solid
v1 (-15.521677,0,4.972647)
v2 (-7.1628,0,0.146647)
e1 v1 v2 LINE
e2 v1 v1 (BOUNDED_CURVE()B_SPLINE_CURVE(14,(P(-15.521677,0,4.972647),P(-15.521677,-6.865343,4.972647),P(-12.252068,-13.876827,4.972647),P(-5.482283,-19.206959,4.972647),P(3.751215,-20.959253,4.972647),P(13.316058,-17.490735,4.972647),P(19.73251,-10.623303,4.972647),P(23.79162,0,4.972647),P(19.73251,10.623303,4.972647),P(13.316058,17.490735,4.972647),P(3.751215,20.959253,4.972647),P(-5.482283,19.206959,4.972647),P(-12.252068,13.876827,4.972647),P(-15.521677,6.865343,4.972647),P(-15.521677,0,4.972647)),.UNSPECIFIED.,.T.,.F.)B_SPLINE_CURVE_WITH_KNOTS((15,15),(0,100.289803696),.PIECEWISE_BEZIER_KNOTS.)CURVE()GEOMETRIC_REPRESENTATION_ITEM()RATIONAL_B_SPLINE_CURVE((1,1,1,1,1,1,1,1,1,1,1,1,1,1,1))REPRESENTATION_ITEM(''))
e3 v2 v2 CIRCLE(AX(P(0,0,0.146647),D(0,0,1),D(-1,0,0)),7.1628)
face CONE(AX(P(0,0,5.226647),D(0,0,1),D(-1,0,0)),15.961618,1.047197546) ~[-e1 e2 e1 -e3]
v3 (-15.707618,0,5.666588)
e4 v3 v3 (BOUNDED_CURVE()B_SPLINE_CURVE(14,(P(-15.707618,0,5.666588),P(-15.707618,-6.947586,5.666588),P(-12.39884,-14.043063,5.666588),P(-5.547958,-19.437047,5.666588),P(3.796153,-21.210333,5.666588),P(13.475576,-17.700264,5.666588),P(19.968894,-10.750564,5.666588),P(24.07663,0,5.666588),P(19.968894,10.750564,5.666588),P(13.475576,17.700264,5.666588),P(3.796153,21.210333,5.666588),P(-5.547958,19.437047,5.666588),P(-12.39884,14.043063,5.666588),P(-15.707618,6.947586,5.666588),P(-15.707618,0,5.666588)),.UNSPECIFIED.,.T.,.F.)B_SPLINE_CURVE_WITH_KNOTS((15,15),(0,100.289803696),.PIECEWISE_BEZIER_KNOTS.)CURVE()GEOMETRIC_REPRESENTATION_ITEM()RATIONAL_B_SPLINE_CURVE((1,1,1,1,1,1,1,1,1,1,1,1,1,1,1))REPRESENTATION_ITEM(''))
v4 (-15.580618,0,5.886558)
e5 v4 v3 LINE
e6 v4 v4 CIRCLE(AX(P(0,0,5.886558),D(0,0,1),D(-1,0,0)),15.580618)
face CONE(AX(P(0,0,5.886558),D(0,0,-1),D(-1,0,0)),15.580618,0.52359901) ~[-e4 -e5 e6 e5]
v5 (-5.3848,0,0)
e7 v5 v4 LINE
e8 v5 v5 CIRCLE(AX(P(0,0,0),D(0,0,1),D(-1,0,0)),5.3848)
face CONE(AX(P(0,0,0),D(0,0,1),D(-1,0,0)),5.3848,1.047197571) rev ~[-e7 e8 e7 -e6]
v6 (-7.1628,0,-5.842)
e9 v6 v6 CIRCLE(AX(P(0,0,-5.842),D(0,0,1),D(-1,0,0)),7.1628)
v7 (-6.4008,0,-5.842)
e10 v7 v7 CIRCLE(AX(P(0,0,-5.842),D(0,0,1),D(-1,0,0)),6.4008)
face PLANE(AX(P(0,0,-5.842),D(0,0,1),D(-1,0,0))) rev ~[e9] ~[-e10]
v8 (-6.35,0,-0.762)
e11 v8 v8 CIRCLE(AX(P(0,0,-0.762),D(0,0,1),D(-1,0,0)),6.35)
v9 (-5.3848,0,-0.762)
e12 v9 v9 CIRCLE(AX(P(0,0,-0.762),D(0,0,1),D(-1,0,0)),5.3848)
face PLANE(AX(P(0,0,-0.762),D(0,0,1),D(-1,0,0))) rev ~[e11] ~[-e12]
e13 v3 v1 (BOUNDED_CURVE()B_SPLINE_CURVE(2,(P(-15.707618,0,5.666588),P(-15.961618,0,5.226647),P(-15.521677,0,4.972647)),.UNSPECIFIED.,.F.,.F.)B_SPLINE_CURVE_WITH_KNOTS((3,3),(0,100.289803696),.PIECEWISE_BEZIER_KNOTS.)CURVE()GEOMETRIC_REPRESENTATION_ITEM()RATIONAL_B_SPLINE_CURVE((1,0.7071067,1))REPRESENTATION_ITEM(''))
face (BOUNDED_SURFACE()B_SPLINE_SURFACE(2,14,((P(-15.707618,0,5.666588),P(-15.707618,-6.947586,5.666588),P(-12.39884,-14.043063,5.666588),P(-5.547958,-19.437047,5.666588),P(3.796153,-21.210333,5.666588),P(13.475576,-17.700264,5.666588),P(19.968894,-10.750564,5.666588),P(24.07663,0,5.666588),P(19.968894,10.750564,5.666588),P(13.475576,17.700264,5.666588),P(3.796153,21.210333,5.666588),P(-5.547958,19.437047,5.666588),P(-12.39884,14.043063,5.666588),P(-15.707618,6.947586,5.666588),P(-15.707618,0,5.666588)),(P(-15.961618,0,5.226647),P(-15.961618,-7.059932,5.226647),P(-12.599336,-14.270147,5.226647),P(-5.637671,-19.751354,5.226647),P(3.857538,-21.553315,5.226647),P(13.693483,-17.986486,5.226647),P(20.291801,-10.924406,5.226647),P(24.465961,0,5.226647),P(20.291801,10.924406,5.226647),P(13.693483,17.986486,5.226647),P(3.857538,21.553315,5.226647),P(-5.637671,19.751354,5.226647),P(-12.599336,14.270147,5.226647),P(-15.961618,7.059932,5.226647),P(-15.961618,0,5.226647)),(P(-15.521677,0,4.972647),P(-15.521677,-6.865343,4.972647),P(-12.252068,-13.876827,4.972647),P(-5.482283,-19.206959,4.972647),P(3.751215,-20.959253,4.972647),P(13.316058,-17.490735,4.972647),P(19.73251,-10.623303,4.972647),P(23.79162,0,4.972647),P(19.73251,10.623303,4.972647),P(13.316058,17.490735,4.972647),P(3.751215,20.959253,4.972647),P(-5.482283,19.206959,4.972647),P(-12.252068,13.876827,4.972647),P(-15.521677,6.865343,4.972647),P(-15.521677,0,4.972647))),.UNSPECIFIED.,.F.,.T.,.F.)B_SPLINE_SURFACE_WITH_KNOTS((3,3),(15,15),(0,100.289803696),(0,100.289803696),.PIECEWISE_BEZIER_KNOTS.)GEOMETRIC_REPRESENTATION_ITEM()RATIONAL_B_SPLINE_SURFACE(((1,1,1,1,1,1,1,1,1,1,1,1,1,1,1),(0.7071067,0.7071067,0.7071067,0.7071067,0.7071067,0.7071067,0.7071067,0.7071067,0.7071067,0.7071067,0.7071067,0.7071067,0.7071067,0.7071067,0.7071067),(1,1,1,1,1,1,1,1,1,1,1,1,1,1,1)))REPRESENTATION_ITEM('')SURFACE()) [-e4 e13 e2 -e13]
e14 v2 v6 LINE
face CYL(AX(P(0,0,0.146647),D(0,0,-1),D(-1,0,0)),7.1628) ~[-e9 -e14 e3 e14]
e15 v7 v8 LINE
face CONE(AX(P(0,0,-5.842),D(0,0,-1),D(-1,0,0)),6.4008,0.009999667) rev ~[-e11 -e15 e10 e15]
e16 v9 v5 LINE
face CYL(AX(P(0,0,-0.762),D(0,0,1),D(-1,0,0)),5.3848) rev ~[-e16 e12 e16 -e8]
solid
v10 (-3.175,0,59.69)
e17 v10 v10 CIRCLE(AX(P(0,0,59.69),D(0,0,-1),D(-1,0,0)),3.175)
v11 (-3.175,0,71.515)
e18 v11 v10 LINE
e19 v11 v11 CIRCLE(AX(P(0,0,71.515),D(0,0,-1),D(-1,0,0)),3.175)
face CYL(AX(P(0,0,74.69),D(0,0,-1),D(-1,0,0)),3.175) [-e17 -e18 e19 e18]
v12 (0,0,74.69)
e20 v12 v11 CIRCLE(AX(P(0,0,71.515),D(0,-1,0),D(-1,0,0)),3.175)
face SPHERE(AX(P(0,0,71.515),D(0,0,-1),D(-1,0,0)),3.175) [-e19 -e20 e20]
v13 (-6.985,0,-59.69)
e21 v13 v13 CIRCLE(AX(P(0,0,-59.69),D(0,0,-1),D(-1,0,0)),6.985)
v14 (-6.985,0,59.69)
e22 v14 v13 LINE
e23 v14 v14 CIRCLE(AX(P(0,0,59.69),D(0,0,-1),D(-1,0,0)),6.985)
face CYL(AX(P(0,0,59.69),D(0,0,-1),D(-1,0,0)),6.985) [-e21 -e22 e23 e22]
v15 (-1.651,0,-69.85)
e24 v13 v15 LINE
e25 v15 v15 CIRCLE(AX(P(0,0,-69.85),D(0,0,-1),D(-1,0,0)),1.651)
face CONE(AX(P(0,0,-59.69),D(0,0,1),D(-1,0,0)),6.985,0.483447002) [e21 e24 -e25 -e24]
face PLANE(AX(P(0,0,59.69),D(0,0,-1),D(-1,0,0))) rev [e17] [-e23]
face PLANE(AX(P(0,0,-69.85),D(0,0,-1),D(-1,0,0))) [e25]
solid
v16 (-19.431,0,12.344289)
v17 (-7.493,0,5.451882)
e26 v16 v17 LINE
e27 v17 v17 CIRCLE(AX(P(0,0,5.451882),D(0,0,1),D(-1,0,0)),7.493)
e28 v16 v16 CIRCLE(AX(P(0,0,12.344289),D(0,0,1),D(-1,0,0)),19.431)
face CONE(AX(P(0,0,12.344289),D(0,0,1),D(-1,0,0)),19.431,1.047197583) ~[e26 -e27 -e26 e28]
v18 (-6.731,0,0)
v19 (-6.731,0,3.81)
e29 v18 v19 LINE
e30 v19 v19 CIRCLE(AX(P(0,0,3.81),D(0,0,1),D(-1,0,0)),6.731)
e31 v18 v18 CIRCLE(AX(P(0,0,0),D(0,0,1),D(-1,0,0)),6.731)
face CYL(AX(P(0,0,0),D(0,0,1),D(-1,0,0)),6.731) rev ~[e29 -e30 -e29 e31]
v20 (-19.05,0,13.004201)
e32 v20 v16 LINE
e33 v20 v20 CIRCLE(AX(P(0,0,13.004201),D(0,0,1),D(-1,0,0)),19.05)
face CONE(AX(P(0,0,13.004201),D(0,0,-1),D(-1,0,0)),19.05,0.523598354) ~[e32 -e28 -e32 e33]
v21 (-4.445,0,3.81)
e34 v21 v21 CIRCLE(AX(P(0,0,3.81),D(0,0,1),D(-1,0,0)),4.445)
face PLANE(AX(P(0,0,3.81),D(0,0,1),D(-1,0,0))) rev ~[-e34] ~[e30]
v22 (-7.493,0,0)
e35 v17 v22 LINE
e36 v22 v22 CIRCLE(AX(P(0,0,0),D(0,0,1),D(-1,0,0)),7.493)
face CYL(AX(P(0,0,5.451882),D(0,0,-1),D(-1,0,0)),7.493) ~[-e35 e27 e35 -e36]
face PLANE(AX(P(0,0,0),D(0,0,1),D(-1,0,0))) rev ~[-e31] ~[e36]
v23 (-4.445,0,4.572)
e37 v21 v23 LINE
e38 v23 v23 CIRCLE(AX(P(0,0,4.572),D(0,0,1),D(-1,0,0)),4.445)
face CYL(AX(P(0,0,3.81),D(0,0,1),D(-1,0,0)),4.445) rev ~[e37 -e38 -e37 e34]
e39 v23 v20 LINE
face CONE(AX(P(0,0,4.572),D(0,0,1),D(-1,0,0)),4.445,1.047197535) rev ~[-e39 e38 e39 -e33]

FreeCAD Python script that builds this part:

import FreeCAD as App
import Part
import Sketcher
Q = App.Units.Quantity


def edges_at(feature, points):
    """Names of the edges that pass closest to the given points."""
    edges = feature.Shape.Edges
    near = lambda p: min(range(len(edges)), key=lambda i: edges[i].distToShape(Part.Vertex(*p))[0])
    return sorted({f"Edge{near(p) + 1}" for p in points})

doc = App.newDocument("Part")
params = doc.addObject("Spreadsheet::Sheet", "Params")
for row, (alias, value) in enumerate([
    ("sketch1_width", "0.03 in"),
    ("sketch1_width2", "0.09 in"),
    ("sketch1_height", "0.15 in"),
    ("sketch1_length", "0.03 in"),
    ("revolution_angle", "360 deg"),
    ("sketch2_height", "4.7 in"),
    ("sketch2_width", "0.15 in"),
    ("sketch2_width2", "0.125 in"),
    ("sketch2_width3", "0.065 in"),
    ("revolution2_angle", "360 deg"),
    ("fillet_radius", "0.125 in"),
    ("sketch3_length", "0.4 in"),
    ("sketch3_width", "0.03 in"),
    ("sketch3_length2", "0.03 in"),
    ("sketch3_width2", "0.038 in"),
    ("revolution3_angle", "360 deg"),
    ("fillet2_radius", "0.02 in"),
], start=1):
    params.set(f"A{row}", alias)
    params.set(f"B{row}", "=" + value)
    params.setAlias(f"B{row}", alias)

body = doc.addObject("PartDesign::Body", "Body")

# Sketch on XZ plane
sketch1 = doc.addObject("Sketcher::SketchObject", "Sketch")
body.addObject(sketch1)
sketch1.AttachmentSupport = (doc.XZ_Plane, [""])
sketch1.MapMode = "FlatFace"
sketch1.addGeometry([
    Part.LineSegment(App.Vector(-4.4, 3.8, 0), App.Vector(-4.4, 4.6, 0)),  # 0
    Part.LineSegment(App.Vector(-4.4, 4.6, 0), App.Vector(-19.1, 13, 0)),  # 1
    Part.LineSegment(App.Vector(-19.1, 13, 0), App.Vector(-19.4, 12.3, 0)),  # 2
    Part.LineSegment(App.Vector(-19.4, 12.3, 0), App.Vector(-7.5, 5.5, 0)),  # 3
    Part.LineSegment(App.Vector(-7.5, 5.5, 0), App.Vector(-7.5, 0, 0)),  # 4
    Part.LineSegment(App.Vector(-7.5, 0, 0), App.Vector(-6.7, 0, 0)),  # 5
    Part.LineSegment(App.Vector(-6.7, 0, 0), App.Vector(-6.7, 3.8, 0)),  # 6
    Part.LineSegment(App.Vector(-6.7, 3.8, 0), App.Vector(-4.4, 3.8, 0)),  # 7
], False)
sketch1.addConstraint([
    Sketcher.Constraint("Coincident", 0, 2, 1, 1),
    Sketcher.Constraint("Coincident", 1, 2, 2, 1),
    Sketcher.Constraint("Coincident", 2, 2, 3, 1),
    Sketcher.Constraint("Coincident", 3, 2, 4, 1),
    Sketcher.Constraint("Coincident", 4, 2, 5, 1),
    Sketcher.Constraint("Coincident", 5, 2, 6, 1),
    Sketcher.Constraint("Coincident", 6, 2, 7, 1),
    Sketcher.Constraint("Coincident", 7, 2, 0, 1),
    Sketcher.Constraint("Vertical", 0),
    Sketcher.Constraint("Vertical", 4),
    Sketcher.Constraint("Horizontal", 5),
    Sketcher.Constraint("Vertical", 6),
    Sketcher.Constraint("Horizontal", 7),
    Sketcher.Constraint("PointOnObject", 4, 2, -1),
    Sketcher.Constraint("Perpendicular", 1, 2),
    Sketcher.Constraint("Perpendicular", 2, 3),
    Sketcher.Constraint("Equal", 5, 0),
    Sketcher.Constraint("Angle", 1, Q("149.999999 deg")),
    Sketcher.Constraint("DistanceX", 5, 1, 5, 2, Q("0.03 in")),
    Sketcher.Constraint("DistanceX", 7, 1, 7, 2, Q("0.09 in")),
    Sketcher.Constraint("DistanceY", 6, 1, 6, 2, Q("0.15 in")),
    Sketcher.Constraint("DistanceX", 2, 2, 5, 2, Q("0.5 in")),
    Sketcher.Constraint("Distance", 2, Q("0.03 in")),
    Sketcher.Constraint("DistanceX", 1, 2, -1, 1, Q("0.75 in")),
])
sketch1.setExpression("Constraints[18]", "Params.sketch1_width")
sketch1.setExpression("Constraints[19]", "Params.sketch1_width2")
sketch1.setExpression("Constraints[20]", "Params.sketch1_height")
sketch1.setExpression("Constraints[22]", "Params.sketch1_length")
revolution = doc.addObject("PartDesign::Revolution", "Revolution")
body.addObject(revolution)
revolution.Profile = sketch1
revolution.ReferenceAxis = (sketch1, ["V_Axis"])
revolution.setExpression("Angle", "Params.revolution_angle")
body2 = doc.addObject("PartDesign::Body", "Body001")

# Sketch on XZ plane
sketch2 = doc.addObject("Sketcher::SketchObject", "Sketch001")
body2.addObject(sketch2)
sketch2.AttachmentSupport = (doc.getObject("XZ_Plane001"), [""])
sketch2.MapMode = "FlatFace"
sketch2.addGeometry([
    Part.LineSegment(App.Vector(0, -69.8, 0), App.Vector(0, 74.7, 0)),  # 0
    Part.LineSegment(App.Vector(0, 74.7, 0), App.Vector(-3.2, 74.7, 0)),  # 1
    Part.LineSegment(App.Vector(-3.2, 74.7, 0), App.Vector(-3.2, 59.7, 0)),  # 2
    Part.LineSegment(App.Vector(-3.2, 59.7, 0), App.Vector(-7, 59.7, 0)),  # 3
    Part.LineSegment(App.Vector(-7, 59.7, 0), App.Vector(-7, -59.7, 0)),  # 4
    Part.LineSegment(App.Vector(-7, -59.7, 0), App.Vector(-1.7, -69.8, 0)),  # 5
    Part.LineSegment(App.Vector(-1.7, -69.8, 0), App.Vector(0, -69.8, 0)),  # 6
], False)
sketch2.addConstraint([
    Sketcher.Constraint("Coincident", 0, 2, 1, 1),
    Sketcher.Constraint("Coincident", 1, 2, 2, 1),
    Sketcher.Constraint("Coincident", 2, 2, 3, 1),
    Sketcher.Constraint("Coincident", 3, 2, 4, 1),
    Sketcher.Constraint("Coincident", 4, 2, 5, 1),
    Sketcher.Constraint("Coincident", 5, 2, 6, 1),
    Sketcher.Constraint("Coincident", 6, 2, 0, 1),
    Sketcher.Constraint("Vertical", 0),
    Sketcher.Constraint("Horizontal", 1),
    Sketcher.Constraint("Vertical", 2),
    Sketcher.Constraint("Horizontal", 3),
    Sketcher.Constraint("Vertical", 4),
    Sketcher.Constraint("Horizontal", 6),
    Sketcher.Constraint("PointOnObject", 0, 2, -2),
    Sketcher.Constraint("DistanceY", 4, 2, 4, 1, Q("4.7 in")),
    Sketcher.Constraint("DistanceX", 3, 2, 3, 1, Q("0.15 in")),
    Sketcher.Constraint("DistanceY", 5, 2, 4, 2, Q("0.4 in")),
    Sketcher.Constraint("DistanceX", 1, 2, 1, 1, Q("0.125 in")),
    Sketcher.Constraint("DistanceX", 6, 1, 6, 2, Q("0.065 in")),
    Sketcher.Constraint("DistanceY", -1, 1, 2, 2, Q("2.35 in")),
    Sketcher.Constraint("DistanceY", 0, 1, 0, 2, Q("144.54 mm")),
])
sketch2.setExpression("Constraints[14]", "Params.sketch2_height")
sketch2.setExpression("Constraints[15]", "Params.sketch2_width")
sketch2.setExpression("Constraints[17]", "Params.sketch2_width2")
sketch2.setExpression("Constraints[18]", "Params.sketch2_width3")
revolution2 = doc.addObject("PartDesign::Revolution", "Revolution001")
body2.addObject(revolution2)
revolution2.Profile = sketch2
revolution2.ReferenceAxis = (sketch2, ["V_Axis"])
revolution2.setExpression("Angle", "Params.revolution2_angle")
doc.recompute()

fillet = doc.addObject("PartDesign::Fillet", "Fillet")
body2.addObject(fillet)
fillet.Base = (revolution2, edges_at(revolution2, [(3.175, 0, 74.69)]))
fillet.setExpression("Radius", "Params.fillet_radius")
body3 = doc.addObject("PartDesign::Body", "Body002")

# Sketch on XZ plane
sketch3 = doc.addObject("Sketcher::SketchObject", "Sketch002")
body3.addObject(sketch3)
sketch3.AttachmentSupport = (doc.getObject("XZ_Plane002"), [""])
sketch3.MapMode = "FlatFace"
sketch3.addGeometry([
    Part.LineSegment(App.Vector(-5.4, -0.8, 0), App.Vector(-5.4, 0, 0)),  # 0
    Part.LineSegment(App.Vector(-5.4, 0, 0), App.Vector(-15.6, 5.9, 0)),  # 1
    Part.LineSegment(App.Vector(-15.6, 5.9, 0), App.Vector(-16, 5.2, 0)),  # 2
    Part.LineSegment(App.Vector(-16, 5.2, 0), App.Vector(-7.2, 0.1, 0)),  # 3
    Part.LineSegment(App.Vector(-7.2, 0.1, 0), App.Vector(-7.2, -5.8, 0)),  # 4
    Part.LineSegment(App.Vector(-7.2, -5.8, 0), App.Vector(-6.4, -5.8, 0)),  # 5
    Part.LineSegment(App.Vector(-6.4, -5.8, 0), App.Vector(-6.3, -0.8, 0)),  # 6
    Part.LineSegment(App.Vector(-6.3, -0.8, 0), App.Vector(-5.4, -0.8, 0)),  # 7
], False)
sketch3.addConstraint([
    Sketcher.Constraint("Coincident", 0, 2, 1, 1),
    Sketcher.Constraint("Coincident", 1, 2, 2, 1),
    Sketcher.Constraint("Coincident", 2, 2, 3, 1),
    Sketcher.Constraint("Coincident", 3, 2, 4, 1),
    Sketcher.Constraint("Coincident", 4, 2, 5, 1),
    Sketcher.Constraint("Coincident", 5, 2, 6, 1),
    Sketcher.Constraint("Coincident", 6, 2, 7, 1),
    Sketcher.Constraint("Coincident", 7, 2, 0, 1),
    Sketcher.Constraint("Vertical", 0),
    Sketcher.Constraint("Vertical", 4),
    Sketcher.Constraint("Horizontal", 5),
    Sketcher.Constraint("Horizontal", 7),
    Sketcher.Constraint("PointOnObject", 0, 2, -1),
    Sketcher.Constraint("Perpendicular", 1, 2),
    Sketcher.Constraint("Perpendicular", 2, 3),
    Sketcher.Constraint("Equal", 5, 0),
    Sketcher.Constraint("Angle", 1, Q("150.000001 deg")),
    Sketcher.Constraint("Distance", 3, Q("0.4 in")),
    Sketcher.Constraint("DistanceX", 5, 1, 5, 2, Q("0.03 in")),
    Sketcher.Constraint("DistanceY", 5, 2, 6, 2, Q("0.2 in")),
    Sketcher.Constraint("Distance", 2, Q("0.03 in")),
    Sketcher.Constraint("DistanceX", 7, 1, 7, 2, Q("0.038 in")),
    Sketcher.Constraint("DistanceX", 6, 2, -1, 1, Q("0.25 in")),
    Sketcher.Constraint("DistanceX", 3, 2, 0, 2, Q("0.07 in")),
])
sketch3.setExpression("Constraints[17]", "Params.sketch3_length")
sketch3.setExpression("Constraints[18]", "Params.sketch3_width")
sketch3.setExpression("Constraints[20]", "Params.sketch3_length2")
sketch3.setExpression("Constraints[21]", "Params.sketch3_width2")
revolution3 = doc.addObject("PartDesign::Revolution", "Revolution002")
body3.addObject(revolution3)
revolution3.Profile = sketch3
revolution3.ReferenceAxis = (sketch3, ["V_Axis"])
revolution3.setExpression("Angle", "Params.revolution3_angle")
doc.recompute()

fillet2 = doc.addObject("PartDesign::Fillet", "Fillet001")
body3.addObject(fillet2)
fillet2.Base = (revolution3, edges_at(revolution3, [(15.962, 0, 5.227)]))
fillet2.setExpression("Radius", "Params.fillet2_radius")

doc.recompute()
